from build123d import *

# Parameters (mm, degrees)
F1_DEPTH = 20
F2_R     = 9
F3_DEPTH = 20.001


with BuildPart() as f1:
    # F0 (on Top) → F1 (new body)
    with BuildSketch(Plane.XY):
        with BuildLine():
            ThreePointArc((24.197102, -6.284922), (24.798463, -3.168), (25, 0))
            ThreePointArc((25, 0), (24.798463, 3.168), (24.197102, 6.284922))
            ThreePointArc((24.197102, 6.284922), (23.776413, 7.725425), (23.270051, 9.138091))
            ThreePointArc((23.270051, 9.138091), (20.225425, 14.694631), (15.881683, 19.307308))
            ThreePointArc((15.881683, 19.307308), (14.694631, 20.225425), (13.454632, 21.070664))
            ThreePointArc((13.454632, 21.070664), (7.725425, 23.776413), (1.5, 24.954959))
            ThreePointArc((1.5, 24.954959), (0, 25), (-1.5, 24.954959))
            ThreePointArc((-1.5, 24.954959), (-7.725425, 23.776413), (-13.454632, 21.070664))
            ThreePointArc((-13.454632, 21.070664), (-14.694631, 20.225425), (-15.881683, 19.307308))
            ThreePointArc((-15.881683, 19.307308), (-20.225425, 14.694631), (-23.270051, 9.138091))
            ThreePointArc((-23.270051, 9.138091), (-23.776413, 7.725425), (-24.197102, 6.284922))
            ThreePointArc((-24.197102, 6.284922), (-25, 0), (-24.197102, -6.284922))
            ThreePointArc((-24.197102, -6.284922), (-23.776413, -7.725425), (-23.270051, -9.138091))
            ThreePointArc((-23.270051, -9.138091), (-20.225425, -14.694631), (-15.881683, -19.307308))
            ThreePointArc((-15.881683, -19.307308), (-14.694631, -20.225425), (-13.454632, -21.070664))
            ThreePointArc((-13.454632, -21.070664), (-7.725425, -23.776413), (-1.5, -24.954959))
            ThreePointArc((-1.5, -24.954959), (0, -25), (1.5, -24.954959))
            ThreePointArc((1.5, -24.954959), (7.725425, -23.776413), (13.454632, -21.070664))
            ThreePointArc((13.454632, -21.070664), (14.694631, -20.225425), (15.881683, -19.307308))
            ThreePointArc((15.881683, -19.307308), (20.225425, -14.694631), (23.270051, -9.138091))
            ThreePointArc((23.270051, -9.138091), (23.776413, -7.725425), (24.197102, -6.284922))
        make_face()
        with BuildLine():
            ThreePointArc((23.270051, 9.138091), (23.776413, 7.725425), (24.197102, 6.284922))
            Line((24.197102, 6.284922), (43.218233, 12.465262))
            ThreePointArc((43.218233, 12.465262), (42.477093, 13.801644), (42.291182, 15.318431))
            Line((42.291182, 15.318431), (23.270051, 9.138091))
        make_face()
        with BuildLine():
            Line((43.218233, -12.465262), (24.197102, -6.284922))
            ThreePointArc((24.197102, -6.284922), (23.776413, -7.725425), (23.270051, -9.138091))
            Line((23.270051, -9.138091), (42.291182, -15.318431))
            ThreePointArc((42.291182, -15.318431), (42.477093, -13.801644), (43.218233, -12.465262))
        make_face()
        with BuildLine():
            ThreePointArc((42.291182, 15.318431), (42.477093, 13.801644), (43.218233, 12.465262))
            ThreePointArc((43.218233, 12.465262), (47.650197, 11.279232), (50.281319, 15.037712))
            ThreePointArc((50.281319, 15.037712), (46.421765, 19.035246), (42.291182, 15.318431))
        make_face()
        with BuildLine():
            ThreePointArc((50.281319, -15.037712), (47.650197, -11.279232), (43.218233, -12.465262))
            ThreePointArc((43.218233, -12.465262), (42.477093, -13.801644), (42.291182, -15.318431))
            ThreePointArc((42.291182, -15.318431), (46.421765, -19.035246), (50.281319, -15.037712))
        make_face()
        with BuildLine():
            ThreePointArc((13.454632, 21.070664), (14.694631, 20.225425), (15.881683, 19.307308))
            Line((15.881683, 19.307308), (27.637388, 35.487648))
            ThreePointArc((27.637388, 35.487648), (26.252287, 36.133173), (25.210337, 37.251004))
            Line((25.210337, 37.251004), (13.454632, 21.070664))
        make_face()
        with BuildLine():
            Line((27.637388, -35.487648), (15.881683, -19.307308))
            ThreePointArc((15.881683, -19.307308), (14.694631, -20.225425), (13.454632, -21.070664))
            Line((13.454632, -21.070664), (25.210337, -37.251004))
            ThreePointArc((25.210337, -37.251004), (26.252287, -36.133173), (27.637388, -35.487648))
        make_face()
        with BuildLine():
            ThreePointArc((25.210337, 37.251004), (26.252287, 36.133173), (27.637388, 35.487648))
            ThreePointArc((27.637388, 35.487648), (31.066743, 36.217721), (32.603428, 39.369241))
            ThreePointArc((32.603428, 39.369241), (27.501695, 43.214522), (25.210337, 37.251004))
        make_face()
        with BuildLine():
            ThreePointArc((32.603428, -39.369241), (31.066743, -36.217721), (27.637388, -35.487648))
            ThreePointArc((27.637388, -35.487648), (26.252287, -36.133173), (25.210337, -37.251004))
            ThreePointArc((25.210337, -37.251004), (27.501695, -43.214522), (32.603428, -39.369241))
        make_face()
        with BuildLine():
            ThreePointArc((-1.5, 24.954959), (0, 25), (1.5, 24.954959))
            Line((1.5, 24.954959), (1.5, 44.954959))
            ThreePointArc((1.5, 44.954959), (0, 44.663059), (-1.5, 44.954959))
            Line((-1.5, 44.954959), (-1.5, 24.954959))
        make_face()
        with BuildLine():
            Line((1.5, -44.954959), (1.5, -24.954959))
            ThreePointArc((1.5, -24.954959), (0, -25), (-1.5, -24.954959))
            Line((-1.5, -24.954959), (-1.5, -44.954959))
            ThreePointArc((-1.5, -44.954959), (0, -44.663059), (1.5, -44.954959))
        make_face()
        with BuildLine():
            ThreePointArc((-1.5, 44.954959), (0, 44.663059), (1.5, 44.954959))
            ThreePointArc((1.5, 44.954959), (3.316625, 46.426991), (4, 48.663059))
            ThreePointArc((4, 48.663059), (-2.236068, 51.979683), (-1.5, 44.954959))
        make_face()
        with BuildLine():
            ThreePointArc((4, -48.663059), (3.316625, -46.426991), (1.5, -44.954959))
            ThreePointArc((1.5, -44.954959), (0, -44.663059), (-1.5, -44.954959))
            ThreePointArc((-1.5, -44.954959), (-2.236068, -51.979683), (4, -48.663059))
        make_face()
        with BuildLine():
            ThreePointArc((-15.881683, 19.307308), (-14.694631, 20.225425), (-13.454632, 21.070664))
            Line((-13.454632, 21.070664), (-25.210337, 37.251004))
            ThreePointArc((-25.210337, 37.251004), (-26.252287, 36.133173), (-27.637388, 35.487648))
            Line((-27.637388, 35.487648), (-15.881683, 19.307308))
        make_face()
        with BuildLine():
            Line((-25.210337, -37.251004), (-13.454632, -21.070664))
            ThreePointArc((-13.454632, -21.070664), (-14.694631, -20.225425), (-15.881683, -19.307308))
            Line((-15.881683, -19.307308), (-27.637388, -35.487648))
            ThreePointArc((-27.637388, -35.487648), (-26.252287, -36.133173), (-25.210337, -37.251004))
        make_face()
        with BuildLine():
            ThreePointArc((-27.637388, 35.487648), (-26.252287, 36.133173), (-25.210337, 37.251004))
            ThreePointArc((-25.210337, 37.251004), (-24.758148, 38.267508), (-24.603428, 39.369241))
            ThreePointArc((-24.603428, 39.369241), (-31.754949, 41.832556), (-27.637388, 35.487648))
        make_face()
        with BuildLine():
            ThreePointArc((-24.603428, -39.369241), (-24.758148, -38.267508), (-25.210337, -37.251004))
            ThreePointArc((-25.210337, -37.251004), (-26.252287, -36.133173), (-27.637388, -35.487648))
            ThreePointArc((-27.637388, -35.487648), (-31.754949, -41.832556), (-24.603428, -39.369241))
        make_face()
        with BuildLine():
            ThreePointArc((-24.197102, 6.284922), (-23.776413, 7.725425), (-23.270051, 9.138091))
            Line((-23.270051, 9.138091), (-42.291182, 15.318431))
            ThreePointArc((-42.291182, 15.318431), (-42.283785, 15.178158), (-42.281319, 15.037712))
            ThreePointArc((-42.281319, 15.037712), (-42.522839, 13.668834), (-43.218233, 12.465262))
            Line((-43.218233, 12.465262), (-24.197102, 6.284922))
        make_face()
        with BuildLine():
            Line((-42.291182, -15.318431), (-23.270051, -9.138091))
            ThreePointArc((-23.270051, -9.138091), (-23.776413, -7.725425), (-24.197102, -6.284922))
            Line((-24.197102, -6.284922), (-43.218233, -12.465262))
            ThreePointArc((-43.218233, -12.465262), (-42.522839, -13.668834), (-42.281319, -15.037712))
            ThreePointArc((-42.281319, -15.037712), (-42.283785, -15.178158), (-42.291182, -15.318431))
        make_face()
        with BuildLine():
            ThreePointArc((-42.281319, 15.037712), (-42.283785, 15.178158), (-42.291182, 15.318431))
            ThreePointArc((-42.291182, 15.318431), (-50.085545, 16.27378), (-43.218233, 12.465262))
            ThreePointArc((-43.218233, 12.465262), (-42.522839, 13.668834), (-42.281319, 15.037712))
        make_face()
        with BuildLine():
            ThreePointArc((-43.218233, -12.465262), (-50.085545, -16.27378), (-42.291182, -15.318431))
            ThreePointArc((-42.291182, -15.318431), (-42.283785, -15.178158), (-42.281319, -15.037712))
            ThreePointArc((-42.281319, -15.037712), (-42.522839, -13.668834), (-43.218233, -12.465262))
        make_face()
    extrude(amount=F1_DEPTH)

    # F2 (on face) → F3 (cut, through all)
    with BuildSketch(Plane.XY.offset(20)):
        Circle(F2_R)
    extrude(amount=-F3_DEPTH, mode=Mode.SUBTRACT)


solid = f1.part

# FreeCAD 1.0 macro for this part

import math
import FreeCAD as App
import Part
import Sketcher
from FreeCAD import Vector
Q = App.Units.Quantity

doc = App.newDocument("Part")
body = doc.addObject("PartDesign::Body", "Body")

# Sketch on XY plane
sketch1 = doc.addObject("Sketcher::SketchObject", "Sketch")
body.addObject(sketch1)
sketch1.AttachmentSupport = (doc.XY_Plane, [""])
sketch1.MapMode = "FlatFace"
sketch1.addGeometry(Part.ArcOfCircle(Part.Circle(Vector(0, 0, 0), Vector(0, 0, 1), 25), math.radians(-14.56), math.radians(0)), False)
sketch1.addGeometry(Part.ArcOfCircle(Part.Circle(Vector(0, 0, 0), Vector(0, 0, 1), 25), math.radians(0), math.radians(14.56)), False)
sketch1.addGeometry(Part.LineSegment(Vector(24.2, 6.3, 0), Vector(43.2, 12.5, 0)), False)
sketch1.addGeometry(Part.ArcOfCircle(Part.Circle(Vector(46.3, 15, 0), Vector(0, 0, 1), 4), math.radians(-140), math.radians(0)), False)
sketch1.addGeometry(Part.ArcOfCircle(Part.Circle(Vector(46.3, 15, 0), Vector(0, 0, 1), 4), math.radians(0), math.radians(176)), False)
sketch1.addGeometry(Part.LineSegment(Vector(42.3, 15.3, 0), Vector(23.3, 9.1, 0)), False)
sketch1.addGeometry(Part.ArcOfCircle(Part.Circle(Vector(0, 0, 0), Vector(0, 0, 1), 25), math.radians(21), math.radians(51)), False)
sketch1.addGeometry(Part.LineSegment(Vector(15.9, 19.3, 0), Vector(27.6, 35.5, 0)), False)
sketch1.addGeometry(Part.ArcOfCircle(Part.Circle(Vector(28.6, 39.4, 0), Vector(0, 0, 1), 4), math.radians(-104), math.radians(0)), False)
sketch1.addGeometry(Part.ArcOfCircle(Part.Circle(Vector(28.6, 39.4, 0), Vector(0, 0, 1), 4), math.radians(0), math.radians(212)), False)
sketch1.addGeometry(Part.LineSegment(Vector(25.2, 37.3, 0), Vector(13.5, 21.1, 0)), False)
sketch1.addGeometry(Part.ArcOfCircle(Part.Circle(Vector(0, 0, 0), Vector(0, 0, 1), 25), math.radians(57), math.radians(87)), False)
sketch1.addGeometry(Part.LineSegment(Vector(1.5, 25, 0), Vector(1.5, 45, 0)), False)
sketch1.addGeometry(Part.ArcOfCircle(Part.Circle(Vector(0, 48.7, 0), Vector(0, 0, 1), 4), math.radians(-68), math.radians(0)), False)
sketch1.addGeometry(Part.ArcOfCircle(Part.Circle(Vector(0, 48.7, 0), Vector(0, 0, 1), 4), math.radians(0), math.radians(248)), False)
sketch1.addGeometry(Part.LineSegment(Vector(-1.5, 45, 0), Vector(-1.5, 25, 0)), False)
sketch1.addGeometry(Part.ArcOfCircle(Part.Circle(Vector(0, 0, 0), Vector(0, 0, 1), 25), math.radians(93), math.radians(123)), False)
sketch1.addGeometry(Part.LineSegment(Vector(-13.5, 21.1, 0), Vector(-25.2, 37.3, 0)), False)
sketch1.addGeometry(Part.ArcOfCircle(Part.Circle(Vector(-28.6, 39.4, 0), Vector(0, 0, 1), 4), math.radians(-32), math.radians(0)), False)
sketch1.addGeometry(Part.ArcOfCircle(Part.Circle(Vector(-28.6, 39.4, 0), Vector(0, 0, 1), 4), math.radians(0), math.radians(284)), False)
sketch1.addGeometry(Part.LineSegment(Vector(-27.6, 35.5, 0), Vector(-15.9, 19.3, 0)), False)
sketch1.addGeometry(Part.ArcOfCircle(Part.Circle(Vector(0, 0, 0), Vector(0, 0, 1), 25), math.radians(129), math.radians(159)), False)
sketch1.addGeometry(Part.LineSegment(Vector(-23.3, 9.1, 0), Vector(-42.3, 15.3, 0)), False)
sketch1.addGeometry(Part.ArcOfCircle(Part.Circle(Vector(-46.3, 15, 0), Vector(0, 0, 1), 4), math.radians(4), math.radians(320)), False)
sketch1.addGeometry(Part.LineSegment(Vector(-43.2, 12.5, 0), Vector(-24.2, 6.3, 0)), False)
sketch1.addGeometry(Part.ArcOfCircle(Part.Circle(Vector(0, 0, 0), Vector(0, 0, 1), 25), math.radians(165), math.radians(195)), False)
sketch1.addGeometry(Part.LineSegment(Vector(-24.2, -6.3, 0), Vector(-43.2, -12.5, 0)), False)
sketch1.addGeometry(Part.ArcOfCircle(Part.Circle(Vector(-46.3, -15, 0), Vector(0, 0, 1), 4), math.radians(40), math.radians(356)), False)
sketch1.addGeometry(Part.LineSegment(Vector(-42.3, -15.3, 0), Vector(-23.3, -9.1, 0)), False)
sketch1.addGeometry(Part.ArcOfCircle(Part.Circle(Vector(0, 0, 0), Vector(0, 0, 1), 25), math.radians(-159), math.radians(-129)), False)
sketch1.addGeometry(Part.LineSegment(Vector(-15.9, -19.3, 0), Vector(-27.6, -35.5, 0)), False)
sketch1.addGeometry(Part.ArcOfCircle(Part.Circle(Vector(-28.6, -39.4, 0), Vector(0, 0, 1), 4), math.radians(76), math.radians(360)), False)
sketch1.addGeometry(Part.ArcOfCircle(Part.Circle(Vector(-28.6, -39.4, 0), Vector(0, 0, 1), 4), math.radians(0), math.radians(32)), False)
sketch1.addGeometry(Part.LineSegment(Vector(-25.2, -37.3, 0), Vector(-13.5, -21.1, 0)), False)
sketch1.addGeometry(Part.ArcOfCircle(Part.Circle(Vector(0, 0, 0), Vector(0, 0, 1), 25), math.radians(-123), math.radians(-93)), False)
sketch1.addGeometry(Part.LineSegment(Vector(-1.5, -25, 0), Vector(-1.5, -45, 0)), False)
sketch1.addGeometry(Part.ArcOfCircle(Part.Circle(Vector(0, -48.7, 0), Vector(0, 0, 1), 4), math.radians(112), math.radians(360)), False)
sketch1.addGeometry(Part.ArcOfCircle(Part.Circle(Vector(0, -48.7, 0), Vector(0, 0, 1), 4), math.radians(0), math.radians(68)), False)
sketch1.addGeometry(Part.LineSegment(Vector(1.5, -45, 0), Vector(1.5, -25, 0)), False)
sketch1.addGeometry(Part.ArcOfCircle(Part.Circle(Vector(0, 0, 0), Vector(0, 0, 1), 25), math.radians(-87), math.radians(-57)), False)
sketch1.addGeometry(Part.LineSegment(Vector(13.5, -21.1, 0), Vector(25.2, -37.3, 0)), False)
sketch1.addGeometry(Part.ArcOfCircle(Part.Circle(Vector(28.6, -39.4, 0), Vector(0, 0, 1), 4), math.radians(148), math.radians(360)), False)
sketch1.addGeometry(Part.ArcOfCircle(Part.Circle(Vector(28.6, -39.4, 0), Vector(0, 0, 1), 4), math.radians(0), math.radians(104)), False)
sketch1.addGeometry(Part.LineSegment(Vector(27.6, -35.5, 0), Vector(15.9, -19.3, 0)), False)
sketch1.addGeometry(Part.ArcOfCircle(Part.Circle(Vector(0, 0, 0), Vector(0, 0, 1), 25), math.radians(-51), math.radians(-21)), False)
sketch1.addGeometry(Part.LineSegment(Vector(23.3, -9.1, 0), Vector(42.3, -15.3, 0)), False)
sketch1.addGeometry(Part.ArcOfCircle(Part.Circle(Vector(46.3, -15, 0), Vector(0, 0, 1), 4), math.radians(-176), math.radians(0)), False)
sketch1.addGeometry(Part.ArcOfCircle(Part.Circle(Vector(46.3, -15, 0), Vector(0, 0, 1), 4), math.radians(0), math.radians(140)), False)
sketch1.addGeometry(Part.LineSegment(Vector(43.2, -12.5, 0), Vector(24.2, -6.3, 0)), False)
sketch1.addConstraint(Sketcher.Constraint("Tangent", 0, 2, 1, 1))
sketch1.addConstraint(Sketcher.Constraint("Coincident", 1, 2, 2, 1))
sketch1.addConstraint(Sketcher.Constraint("Coincident", 2, 2, 3, 1))
sketch1.addConstraint(Sketcher.Constraint("Tangent", 3, 2, 4, 1))
sketch1.addConstraint(Sketcher.Constraint("Coincident", 4, 2, 5, 1))
sketch1.addConstraint(Sketcher.Constraint("Coincident", 5, 2, 6, 1))
sketch1.addConstraint(Sketcher.Constraint("Coincident", 6, 2, 7, 1))
sketch1.addConstraint(Sketcher.Constraint("Coincident", 7, 2, 8, 1))
sketch1.addConstraint(Sketcher.Constraint("Tangent", 8, 2, 9, 1))
sketch1.addConstraint(Sketcher.Constraint("Coincident", 9, 2, 10, 1))
sketch1.addConstraint(Sketcher.Constraint("Coincident", 10, 2, 11, 1))
sketch1.addConstraint(Sketcher.Constraint("Coincident", 11, 2, 12, 1))
sketch1.addConstraint(Sketcher.Constraint("Coincident", 12, 2, 13, 1))
sketch1.addConstraint(Sketcher.Constraint("Tangent", 13, 2, 14, 1))
sketch1.addConstraint(Sketcher.Constraint("Coincident", 14, 2, 15, 1))
sketch1.addConstraint(Sketcher.Constraint("Coincident", 15, 2, 16, 1))
sketch1.addConstraint(Sketcher.Constraint("Coincident", 16, 2, 17, 1))
sketch1.addConstraint(Sketcher.Constraint("Coincident", 17, 2, 18, 1))
sketch1.addConstraint(Sketcher.Constraint("Tangent", 18, 2, 19, 1))
sketch1.addConstraint(Sketcher.Constraint("Coincident", 19, 2, 20, 1))
sketch1.addConstraint(Sketcher.Constraint("Coincident", 20, 2, 21, 1))
sketch1.addConstraint(Sketcher.Constraint("Coincident", 21, 2, 22, 1))
sketch1.addConstraint(Sketcher.Constraint("Coincident", 22, 2, 23, 1))
sketch1.addConstraint(Sketcher.Constraint("Coincident", 23, 2, 24, 1))
sketch1.addConstraint(Sketcher.Constraint("Coincident", 24, 2, 25, 1))
sketch1.addConstraint(Sketcher.Constraint("Coincident", 25, 2, 26, 1))
sketch1.addConstraint(Sketcher.Constraint("Coincident", 26, 2, 27, 1))
sketch1.addConstraint(Sketcher.Constraint("Coincident", 27, 2, 28, 1))
sketch1.addConstraint(Sketcher.Constraint("Coincident", 28, 2, 29, 1))
sketch1.addConstraint(Sketcher.Constraint("Coincident", 29, 2, 30, 1))
sketch1.addConstraint(Sketcher.Constraint("Coincident", 30, 2, 31, 1))
sketch1.addConstraint(Sketcher.Constraint("Tangent", 31, 2, 32, 1))
sketch1.addConstraint(Sketcher.Constraint("Coincident", 32, 2, 33, 1))
sketch1.addConstraint(Sketcher.Constraint("Coincident", 33, 2, 34, 1))
sketch1.addConstraint(Sketcher.Constraint("Coincident", 34, 2, 35, 1))
sketch1.addConstraint(Sketcher.Constraint("Coincident", 35, 2, 36, 1))
sketch1.addConstraint(Sketcher.Constraint("Tangent", 36, 2, 37, 1))
sketch1.addConstraint(Sketcher.Constraint("Coincident", 37, 2, 38, 1))
sketch1.addConstraint(Sketcher.Constraint("Coincident", 38, 2, 39, 1))
sketch1.addConstraint(Sketcher.Constraint("Coincident", 39, 2, 40, 1))
sketch1.addConstraint(Sketcher.Constraint("Coincident", 40, 2, 41, 1))
sketch1.addConstraint(Sketcher.Constraint("Tangent", 41, 2, 42, 1))
sketch1.addConstraint(Sketcher.Constraint("Coincident", 42, 2, 43, 1))
sketch1.addConstraint(Sketcher.Constraint("Coincident", 43, 2, 44, 1))
sketch1.addConstraint(Sketcher.Constraint("Coincident", 44, 2, 45, 1))
sketch1.addConstraint(Sketcher.Constraint("Coincident", 45, 2, 46, 1))
sketch1.addConstraint(Sketcher.Constraint("Tangent", 46, 2, 47, 1))
sketch1.addConstraint(Sketcher.Constraint("Coincident", 47, 2, 48, 1))
sketch1.addConstraint(Sketcher.Constraint("Coincident", 48, 2, 0, 1))
sketch1.addConstraint(Sketcher.Constraint("Vertical", 12))
sketch1.addConstraint(Sketcher.Constraint("Vertical", 15))
sketch1.addConstraint(Sketcher.Constraint("Vertical", 35))
sketch1.addConstraint(Sketcher.Constraint("Vertical", 38))
sketch1.addConstraint(Sketcher.Constraint("Coincident", 0, 3, -1, 1))
sketch1.addConstraint(Sketcher.Constraint("Coincident", 6, 3, -1, 1))
sketch1.addConstraint(Sketcher.Constraint("Coincident", 11, 3, -1, 1))
sketch1.addConstraint(Sketcher.Constraint("Coincident", 16, 3, -1, 1))
sketch1.addConstraint(Sketcher.Constraint("Coincident", 21, 3, -1, 1))
sketch1.addConstraint(Sketcher.Constraint("Coincident", 25, 3, -1, 1))
sketch1.addConstraint(Sketcher.Constraint("Coincident", 29, 3, -1, 1))
sketch1.addConstraint(Sketcher.Constraint("Coincident", 34, 3, -1, 1))
sketch1.addConstraint(Sketcher.Constraint("Coincident", 39, 3, -1, 1))
sketch1.addConstraint(Sketcher.Constraint("Coincident", 44, 3, -1, 1))
sketch1.addConstraint(Sketcher.Constraint("Equal", 0, 1))
sketch1.addConstraint(Sketcher.Constraint("Equal", 3, 4))
sketch1.addConstraint(Sketcher.Constraint("Equal", 4, 8))
sketch1.addConstraint(Sketcher.Constraint("Equal", 8, 9))
sketch1.addConstraint(Sketcher.Constraint("Equal", 9, 13))
sketch1.addConstraint(Sketcher.Constraint("Equal", 13, 14))
sketch1.addConstraint(Sketcher.Constraint("Equal", 11, 16))
sketch1.addConstraint(Sketcher.Constraint("Equal", 14, 19))
sketch1.addConstraint(Sketcher.Constraint("Equal", 6, 21))
sketch1.addConstraint(Sketcher.Constraint("Equal", 19, 23))
sketch1.addConstraint(Sketcher.Constraint("Equal", 21, 25))
sketch1.addConstraint(Sketcher.Constraint("Equal", 23, 27))
sketch1.addConstraint(Sketcher.Constraint("Equal", 25, 29))
sketch1.addConstraint(Sketcher.Constraint("Equal", 27, 31))
sketch1.addConstraint(Sketcher.Constraint("Equal", 18, 32))
sketch1.addConstraint(Sketcher.Constraint("Equal", 16, 34))
sketch1.addConstraint(Sketcher.Constraint("Equal", 31, 36))
sketch1.addConstraint(Sketcher.Constraint("Equal", 36, 37))
sketch1.addConstraint(Sketcher.Constraint("Equal", 34, 39))
sketch1.addConstraint(Sketcher.Constraint("Equal", 37, 41))
sketch1.addConstraint(Sketcher.Constraint("Equal", 41, 42))
sketch1.addConstraint(Sketcher.Constraint("Equal", 29, 44))
sketch1.addConstraint(Sketcher.Constraint("Equal", 42, 46))
sketch1.addConstraint(Sketcher.Constraint("Equal", 46, 47))
sketch1.addConstraint(Sketcher.Constraint("Symmetric", 3, 3, 27, 3, -1, 1))
sketch1.addConstraint(Sketcher.Constraint("Symmetric", 8, 3, 31, 3, -1, 1))
sketch1.addConstraint(Sketcher.Constraint("Symmetric", 13, 3, 36, 3, -1, 1))
sketch1.addConstraint(Sketcher.Constraint("Symmetric", 19, 3, 41, 3, -1, 1))
sketch1.addConstraint(Sketcher.Constraint("Symmetric", 23, 3, 46, 3, -1, 1))
sketch1.addConstraint(Sketcher.Constraint("Symmetric", 1, 2, 25, 2, -1, 1))
sketch1.addConstraint(Sketcher.Constraint("Symmetric", 9, 2, 32, 2, -1, 1))
sketch1.addConstraint(Sketcher.Constraint("Symmetric", 8, 3, 19, 3, -2))
sketch1.addConstraint(Sketcher.Constraint("Symmetric", 3, 3, 23, 3, -2))
sketch1.addConstraint(Sketcher.Constraint("Symmetric", 12, 2, 14, 2, -2))
sketch1.addConstraint(Sketcher.Constraint("PointOnObject", 0, 2, -1))
sketch1.addConstraint(Sketcher.Constraint("Parallel", 2, 5))
sketch1.addConstraint(Sketcher.Constraint("Parallel", 7, 10))
sketch1.addConstraint(Sketcher.Constraint("Parallel", 17, 20))
sketch1.addConstraint(Sketcher.Constraint("Parallel", 22, 24))
sketch1.addConstraint(Sketcher.Constraint("Parallel", 5, 26))
sketch1.addConstraint(Sketcher.Constraint("Parallel", 26, 28))
sketch1.addConstraint(Sketcher.Constraint("Parallel", 10, 30))
sketch1.addConstraint(Sketcher.Constraint("Parallel", 30, 33))
sketch1.addConstraint(Sketcher.Constraint("Parallel", 20, 40))
sketch1.addConstraint(Sketcher.Constraint("Parallel", 40, 43))
sketch1.addConstraint(Sketcher.Constraint("Parallel", 24, 45))
sketch1.addConstraint(Sketcher.Constraint("Parallel", 45, 48))
sketch1.addConstraint(Sketcher.Constraint("Horizontal", 23, 3, 3, 2))
sketch1.addConstraint(Sketcher.Constraint("Horizontal", 19, 3, 8, 2))
sketch1.addConstraint(Sketcher.Constraint("Horizontal", 14, 3, 13, 2))
sketch1.addConstraint(Sketcher.Constraint("Horizontal", 10, 2, 16, 2))
sketch1.addConstraint(Sketcher.Constraint("Horizontal", 9, 2, 17, 2))
sketch1.addConstraint(Sketcher.Constraint("Horizontal", 8, 2, 18, 2))
sketch1.addConstraint(Sketcher.Constraint("Horizontal", 7, 2, 19, 2))
sketch1.addConstraint(Sketcher.Constraint("Horizontal", 5, 2, 21, 2))
sketch1.addConstraint(Sketcher.Constraint("Horizontal", 4, 2, 22, 2))
sketch1.addConstraint(Sketcher.Constraint("Horizontal", 2, 2, 23, 2))
sketch1.addConstraint(Sketcher.Constraint("Horizontal", 42, 3, 31, 2))
sketch1.addConstraint(Sketcher.Constraint("Horizontal", 37, 3, 36, 2))
sketch1.addConstraint(Sketcher.Constraint("Horizontal", 35, 2, 37, 2))
sketch1.addConstraint(Sketcher.Constraint("Horizontal", 33, 2, 39, 2))
sketch1.addConstraint(Sketcher.Constraint("Horizontal", 31, 2, 41, 2))
sketch1.addConstraint(Sketcher.Constraint("Horizontal", 30, 2, 42, 2))
sketch1.addConstraint(Sketcher.Constraint("Horizontal", 28, 2, 44, 2))
sketch1.addConstraint(Sketcher.Constraint("Horizontal", 47, 3, 46, 2))
sketch1.addConstraint(Sketcher.Constraint("Horizontal", 26, 2, 47, 2))
sketch1.addConstraint(Sketcher.Constraint("Vertical", 22, 2, 27, 2))
sketch1.addConstraint(Sketcher.Constraint("Vertical", 20, 2, 29, 2))
sketch1.addConstraint(Sketcher.Constraint("Vertical", 15, 2, 34, 2))
sketch1.addConstraint(Sketcher.Constraint("Equal", 2, 5))
sketch1.addConstraint(Sketcher.Constraint("Equal", 5, 7))
sketch1.addConstraint(Sketcher.Constraint("Equal", 7, 10))
sketch1.addConstraint(Sketcher.Constraint("Radius", 3, 4.0))
sketch1.addConstraint(Sketcher.Constraint("DistanceY", 12, 1, 12, 2, 20.0))
sketch1.addConstraint(Sketcher.Constraint("Angle", 2, Q("18 deg")))
sketch1.addConstraint(Sketcher.Constraint("Angle", 7, Q("54 deg")))
sketch1.addConstraint(Sketcher.Constraint("Distance", 2, 20.000001))
sketch1.addConstraint(Sketcher.Constraint("DistanceX", -1, 1, 0, 2, 25.0))
sketch1.addConstraint(Sketcher.Constraint("DistanceX", -1, 1, 11, 2, 1.5))
sketch1.addConstraint(Sketcher.Constraint("Radius", 11, 24.999991))
sketch1.addConstraint(Sketcher.Constraint("DistanceX", 25, 2, -1, 1, 24.197102))
sketch1.addConstraint(Sketcher.Constraint("DistanceX", -1, 1, 3, 3, 46.281319))
sketch1.addConstraint(Sketcher.Constraint("DistanceX", -1, 1, 8, 3, 28.603428))
sketch1.addConstraint(Sketcher.Constraint("DistanceY", -1, 1, 8, 3, 39.369241))
pad1 = doc.addObject("PartDesign::Pad", "Pad")
body.addObject(pad1)
pad1.Profile = sketch1
pad1.Length = 20

# Sketch on XY plane
sketch2 = doc.addObject("Sketcher::SketchObject", "Sketch001")
body.addObject(sketch2)
sketch2.AttachmentSupport = (doc.XY_Plane, [""])
sketch2.MapMode = "FlatFace"
sketch2.AttachmentOffset = App.Placement(Vector(0, 0, 20), App.Rotation())
sketch2.addGeometry(Part.Circle(Vector(0, 0, 0), Vector(0, 0, 1), 9), False)
sketch2.addConstraint(Sketcher.Constraint("Coincident", 0, 3, -1, 1))
sketch2.addConstraint(Sketcher.Constraint("Diameter", 0, 18.0))
pocket1 = doc.addObject("PartDesign::Pocket", "Pocket")
body.addObject(pocket1)
pocket1.Profile = sketch2
pocket1.Type = "ThroughAll"

doc.recompute()
